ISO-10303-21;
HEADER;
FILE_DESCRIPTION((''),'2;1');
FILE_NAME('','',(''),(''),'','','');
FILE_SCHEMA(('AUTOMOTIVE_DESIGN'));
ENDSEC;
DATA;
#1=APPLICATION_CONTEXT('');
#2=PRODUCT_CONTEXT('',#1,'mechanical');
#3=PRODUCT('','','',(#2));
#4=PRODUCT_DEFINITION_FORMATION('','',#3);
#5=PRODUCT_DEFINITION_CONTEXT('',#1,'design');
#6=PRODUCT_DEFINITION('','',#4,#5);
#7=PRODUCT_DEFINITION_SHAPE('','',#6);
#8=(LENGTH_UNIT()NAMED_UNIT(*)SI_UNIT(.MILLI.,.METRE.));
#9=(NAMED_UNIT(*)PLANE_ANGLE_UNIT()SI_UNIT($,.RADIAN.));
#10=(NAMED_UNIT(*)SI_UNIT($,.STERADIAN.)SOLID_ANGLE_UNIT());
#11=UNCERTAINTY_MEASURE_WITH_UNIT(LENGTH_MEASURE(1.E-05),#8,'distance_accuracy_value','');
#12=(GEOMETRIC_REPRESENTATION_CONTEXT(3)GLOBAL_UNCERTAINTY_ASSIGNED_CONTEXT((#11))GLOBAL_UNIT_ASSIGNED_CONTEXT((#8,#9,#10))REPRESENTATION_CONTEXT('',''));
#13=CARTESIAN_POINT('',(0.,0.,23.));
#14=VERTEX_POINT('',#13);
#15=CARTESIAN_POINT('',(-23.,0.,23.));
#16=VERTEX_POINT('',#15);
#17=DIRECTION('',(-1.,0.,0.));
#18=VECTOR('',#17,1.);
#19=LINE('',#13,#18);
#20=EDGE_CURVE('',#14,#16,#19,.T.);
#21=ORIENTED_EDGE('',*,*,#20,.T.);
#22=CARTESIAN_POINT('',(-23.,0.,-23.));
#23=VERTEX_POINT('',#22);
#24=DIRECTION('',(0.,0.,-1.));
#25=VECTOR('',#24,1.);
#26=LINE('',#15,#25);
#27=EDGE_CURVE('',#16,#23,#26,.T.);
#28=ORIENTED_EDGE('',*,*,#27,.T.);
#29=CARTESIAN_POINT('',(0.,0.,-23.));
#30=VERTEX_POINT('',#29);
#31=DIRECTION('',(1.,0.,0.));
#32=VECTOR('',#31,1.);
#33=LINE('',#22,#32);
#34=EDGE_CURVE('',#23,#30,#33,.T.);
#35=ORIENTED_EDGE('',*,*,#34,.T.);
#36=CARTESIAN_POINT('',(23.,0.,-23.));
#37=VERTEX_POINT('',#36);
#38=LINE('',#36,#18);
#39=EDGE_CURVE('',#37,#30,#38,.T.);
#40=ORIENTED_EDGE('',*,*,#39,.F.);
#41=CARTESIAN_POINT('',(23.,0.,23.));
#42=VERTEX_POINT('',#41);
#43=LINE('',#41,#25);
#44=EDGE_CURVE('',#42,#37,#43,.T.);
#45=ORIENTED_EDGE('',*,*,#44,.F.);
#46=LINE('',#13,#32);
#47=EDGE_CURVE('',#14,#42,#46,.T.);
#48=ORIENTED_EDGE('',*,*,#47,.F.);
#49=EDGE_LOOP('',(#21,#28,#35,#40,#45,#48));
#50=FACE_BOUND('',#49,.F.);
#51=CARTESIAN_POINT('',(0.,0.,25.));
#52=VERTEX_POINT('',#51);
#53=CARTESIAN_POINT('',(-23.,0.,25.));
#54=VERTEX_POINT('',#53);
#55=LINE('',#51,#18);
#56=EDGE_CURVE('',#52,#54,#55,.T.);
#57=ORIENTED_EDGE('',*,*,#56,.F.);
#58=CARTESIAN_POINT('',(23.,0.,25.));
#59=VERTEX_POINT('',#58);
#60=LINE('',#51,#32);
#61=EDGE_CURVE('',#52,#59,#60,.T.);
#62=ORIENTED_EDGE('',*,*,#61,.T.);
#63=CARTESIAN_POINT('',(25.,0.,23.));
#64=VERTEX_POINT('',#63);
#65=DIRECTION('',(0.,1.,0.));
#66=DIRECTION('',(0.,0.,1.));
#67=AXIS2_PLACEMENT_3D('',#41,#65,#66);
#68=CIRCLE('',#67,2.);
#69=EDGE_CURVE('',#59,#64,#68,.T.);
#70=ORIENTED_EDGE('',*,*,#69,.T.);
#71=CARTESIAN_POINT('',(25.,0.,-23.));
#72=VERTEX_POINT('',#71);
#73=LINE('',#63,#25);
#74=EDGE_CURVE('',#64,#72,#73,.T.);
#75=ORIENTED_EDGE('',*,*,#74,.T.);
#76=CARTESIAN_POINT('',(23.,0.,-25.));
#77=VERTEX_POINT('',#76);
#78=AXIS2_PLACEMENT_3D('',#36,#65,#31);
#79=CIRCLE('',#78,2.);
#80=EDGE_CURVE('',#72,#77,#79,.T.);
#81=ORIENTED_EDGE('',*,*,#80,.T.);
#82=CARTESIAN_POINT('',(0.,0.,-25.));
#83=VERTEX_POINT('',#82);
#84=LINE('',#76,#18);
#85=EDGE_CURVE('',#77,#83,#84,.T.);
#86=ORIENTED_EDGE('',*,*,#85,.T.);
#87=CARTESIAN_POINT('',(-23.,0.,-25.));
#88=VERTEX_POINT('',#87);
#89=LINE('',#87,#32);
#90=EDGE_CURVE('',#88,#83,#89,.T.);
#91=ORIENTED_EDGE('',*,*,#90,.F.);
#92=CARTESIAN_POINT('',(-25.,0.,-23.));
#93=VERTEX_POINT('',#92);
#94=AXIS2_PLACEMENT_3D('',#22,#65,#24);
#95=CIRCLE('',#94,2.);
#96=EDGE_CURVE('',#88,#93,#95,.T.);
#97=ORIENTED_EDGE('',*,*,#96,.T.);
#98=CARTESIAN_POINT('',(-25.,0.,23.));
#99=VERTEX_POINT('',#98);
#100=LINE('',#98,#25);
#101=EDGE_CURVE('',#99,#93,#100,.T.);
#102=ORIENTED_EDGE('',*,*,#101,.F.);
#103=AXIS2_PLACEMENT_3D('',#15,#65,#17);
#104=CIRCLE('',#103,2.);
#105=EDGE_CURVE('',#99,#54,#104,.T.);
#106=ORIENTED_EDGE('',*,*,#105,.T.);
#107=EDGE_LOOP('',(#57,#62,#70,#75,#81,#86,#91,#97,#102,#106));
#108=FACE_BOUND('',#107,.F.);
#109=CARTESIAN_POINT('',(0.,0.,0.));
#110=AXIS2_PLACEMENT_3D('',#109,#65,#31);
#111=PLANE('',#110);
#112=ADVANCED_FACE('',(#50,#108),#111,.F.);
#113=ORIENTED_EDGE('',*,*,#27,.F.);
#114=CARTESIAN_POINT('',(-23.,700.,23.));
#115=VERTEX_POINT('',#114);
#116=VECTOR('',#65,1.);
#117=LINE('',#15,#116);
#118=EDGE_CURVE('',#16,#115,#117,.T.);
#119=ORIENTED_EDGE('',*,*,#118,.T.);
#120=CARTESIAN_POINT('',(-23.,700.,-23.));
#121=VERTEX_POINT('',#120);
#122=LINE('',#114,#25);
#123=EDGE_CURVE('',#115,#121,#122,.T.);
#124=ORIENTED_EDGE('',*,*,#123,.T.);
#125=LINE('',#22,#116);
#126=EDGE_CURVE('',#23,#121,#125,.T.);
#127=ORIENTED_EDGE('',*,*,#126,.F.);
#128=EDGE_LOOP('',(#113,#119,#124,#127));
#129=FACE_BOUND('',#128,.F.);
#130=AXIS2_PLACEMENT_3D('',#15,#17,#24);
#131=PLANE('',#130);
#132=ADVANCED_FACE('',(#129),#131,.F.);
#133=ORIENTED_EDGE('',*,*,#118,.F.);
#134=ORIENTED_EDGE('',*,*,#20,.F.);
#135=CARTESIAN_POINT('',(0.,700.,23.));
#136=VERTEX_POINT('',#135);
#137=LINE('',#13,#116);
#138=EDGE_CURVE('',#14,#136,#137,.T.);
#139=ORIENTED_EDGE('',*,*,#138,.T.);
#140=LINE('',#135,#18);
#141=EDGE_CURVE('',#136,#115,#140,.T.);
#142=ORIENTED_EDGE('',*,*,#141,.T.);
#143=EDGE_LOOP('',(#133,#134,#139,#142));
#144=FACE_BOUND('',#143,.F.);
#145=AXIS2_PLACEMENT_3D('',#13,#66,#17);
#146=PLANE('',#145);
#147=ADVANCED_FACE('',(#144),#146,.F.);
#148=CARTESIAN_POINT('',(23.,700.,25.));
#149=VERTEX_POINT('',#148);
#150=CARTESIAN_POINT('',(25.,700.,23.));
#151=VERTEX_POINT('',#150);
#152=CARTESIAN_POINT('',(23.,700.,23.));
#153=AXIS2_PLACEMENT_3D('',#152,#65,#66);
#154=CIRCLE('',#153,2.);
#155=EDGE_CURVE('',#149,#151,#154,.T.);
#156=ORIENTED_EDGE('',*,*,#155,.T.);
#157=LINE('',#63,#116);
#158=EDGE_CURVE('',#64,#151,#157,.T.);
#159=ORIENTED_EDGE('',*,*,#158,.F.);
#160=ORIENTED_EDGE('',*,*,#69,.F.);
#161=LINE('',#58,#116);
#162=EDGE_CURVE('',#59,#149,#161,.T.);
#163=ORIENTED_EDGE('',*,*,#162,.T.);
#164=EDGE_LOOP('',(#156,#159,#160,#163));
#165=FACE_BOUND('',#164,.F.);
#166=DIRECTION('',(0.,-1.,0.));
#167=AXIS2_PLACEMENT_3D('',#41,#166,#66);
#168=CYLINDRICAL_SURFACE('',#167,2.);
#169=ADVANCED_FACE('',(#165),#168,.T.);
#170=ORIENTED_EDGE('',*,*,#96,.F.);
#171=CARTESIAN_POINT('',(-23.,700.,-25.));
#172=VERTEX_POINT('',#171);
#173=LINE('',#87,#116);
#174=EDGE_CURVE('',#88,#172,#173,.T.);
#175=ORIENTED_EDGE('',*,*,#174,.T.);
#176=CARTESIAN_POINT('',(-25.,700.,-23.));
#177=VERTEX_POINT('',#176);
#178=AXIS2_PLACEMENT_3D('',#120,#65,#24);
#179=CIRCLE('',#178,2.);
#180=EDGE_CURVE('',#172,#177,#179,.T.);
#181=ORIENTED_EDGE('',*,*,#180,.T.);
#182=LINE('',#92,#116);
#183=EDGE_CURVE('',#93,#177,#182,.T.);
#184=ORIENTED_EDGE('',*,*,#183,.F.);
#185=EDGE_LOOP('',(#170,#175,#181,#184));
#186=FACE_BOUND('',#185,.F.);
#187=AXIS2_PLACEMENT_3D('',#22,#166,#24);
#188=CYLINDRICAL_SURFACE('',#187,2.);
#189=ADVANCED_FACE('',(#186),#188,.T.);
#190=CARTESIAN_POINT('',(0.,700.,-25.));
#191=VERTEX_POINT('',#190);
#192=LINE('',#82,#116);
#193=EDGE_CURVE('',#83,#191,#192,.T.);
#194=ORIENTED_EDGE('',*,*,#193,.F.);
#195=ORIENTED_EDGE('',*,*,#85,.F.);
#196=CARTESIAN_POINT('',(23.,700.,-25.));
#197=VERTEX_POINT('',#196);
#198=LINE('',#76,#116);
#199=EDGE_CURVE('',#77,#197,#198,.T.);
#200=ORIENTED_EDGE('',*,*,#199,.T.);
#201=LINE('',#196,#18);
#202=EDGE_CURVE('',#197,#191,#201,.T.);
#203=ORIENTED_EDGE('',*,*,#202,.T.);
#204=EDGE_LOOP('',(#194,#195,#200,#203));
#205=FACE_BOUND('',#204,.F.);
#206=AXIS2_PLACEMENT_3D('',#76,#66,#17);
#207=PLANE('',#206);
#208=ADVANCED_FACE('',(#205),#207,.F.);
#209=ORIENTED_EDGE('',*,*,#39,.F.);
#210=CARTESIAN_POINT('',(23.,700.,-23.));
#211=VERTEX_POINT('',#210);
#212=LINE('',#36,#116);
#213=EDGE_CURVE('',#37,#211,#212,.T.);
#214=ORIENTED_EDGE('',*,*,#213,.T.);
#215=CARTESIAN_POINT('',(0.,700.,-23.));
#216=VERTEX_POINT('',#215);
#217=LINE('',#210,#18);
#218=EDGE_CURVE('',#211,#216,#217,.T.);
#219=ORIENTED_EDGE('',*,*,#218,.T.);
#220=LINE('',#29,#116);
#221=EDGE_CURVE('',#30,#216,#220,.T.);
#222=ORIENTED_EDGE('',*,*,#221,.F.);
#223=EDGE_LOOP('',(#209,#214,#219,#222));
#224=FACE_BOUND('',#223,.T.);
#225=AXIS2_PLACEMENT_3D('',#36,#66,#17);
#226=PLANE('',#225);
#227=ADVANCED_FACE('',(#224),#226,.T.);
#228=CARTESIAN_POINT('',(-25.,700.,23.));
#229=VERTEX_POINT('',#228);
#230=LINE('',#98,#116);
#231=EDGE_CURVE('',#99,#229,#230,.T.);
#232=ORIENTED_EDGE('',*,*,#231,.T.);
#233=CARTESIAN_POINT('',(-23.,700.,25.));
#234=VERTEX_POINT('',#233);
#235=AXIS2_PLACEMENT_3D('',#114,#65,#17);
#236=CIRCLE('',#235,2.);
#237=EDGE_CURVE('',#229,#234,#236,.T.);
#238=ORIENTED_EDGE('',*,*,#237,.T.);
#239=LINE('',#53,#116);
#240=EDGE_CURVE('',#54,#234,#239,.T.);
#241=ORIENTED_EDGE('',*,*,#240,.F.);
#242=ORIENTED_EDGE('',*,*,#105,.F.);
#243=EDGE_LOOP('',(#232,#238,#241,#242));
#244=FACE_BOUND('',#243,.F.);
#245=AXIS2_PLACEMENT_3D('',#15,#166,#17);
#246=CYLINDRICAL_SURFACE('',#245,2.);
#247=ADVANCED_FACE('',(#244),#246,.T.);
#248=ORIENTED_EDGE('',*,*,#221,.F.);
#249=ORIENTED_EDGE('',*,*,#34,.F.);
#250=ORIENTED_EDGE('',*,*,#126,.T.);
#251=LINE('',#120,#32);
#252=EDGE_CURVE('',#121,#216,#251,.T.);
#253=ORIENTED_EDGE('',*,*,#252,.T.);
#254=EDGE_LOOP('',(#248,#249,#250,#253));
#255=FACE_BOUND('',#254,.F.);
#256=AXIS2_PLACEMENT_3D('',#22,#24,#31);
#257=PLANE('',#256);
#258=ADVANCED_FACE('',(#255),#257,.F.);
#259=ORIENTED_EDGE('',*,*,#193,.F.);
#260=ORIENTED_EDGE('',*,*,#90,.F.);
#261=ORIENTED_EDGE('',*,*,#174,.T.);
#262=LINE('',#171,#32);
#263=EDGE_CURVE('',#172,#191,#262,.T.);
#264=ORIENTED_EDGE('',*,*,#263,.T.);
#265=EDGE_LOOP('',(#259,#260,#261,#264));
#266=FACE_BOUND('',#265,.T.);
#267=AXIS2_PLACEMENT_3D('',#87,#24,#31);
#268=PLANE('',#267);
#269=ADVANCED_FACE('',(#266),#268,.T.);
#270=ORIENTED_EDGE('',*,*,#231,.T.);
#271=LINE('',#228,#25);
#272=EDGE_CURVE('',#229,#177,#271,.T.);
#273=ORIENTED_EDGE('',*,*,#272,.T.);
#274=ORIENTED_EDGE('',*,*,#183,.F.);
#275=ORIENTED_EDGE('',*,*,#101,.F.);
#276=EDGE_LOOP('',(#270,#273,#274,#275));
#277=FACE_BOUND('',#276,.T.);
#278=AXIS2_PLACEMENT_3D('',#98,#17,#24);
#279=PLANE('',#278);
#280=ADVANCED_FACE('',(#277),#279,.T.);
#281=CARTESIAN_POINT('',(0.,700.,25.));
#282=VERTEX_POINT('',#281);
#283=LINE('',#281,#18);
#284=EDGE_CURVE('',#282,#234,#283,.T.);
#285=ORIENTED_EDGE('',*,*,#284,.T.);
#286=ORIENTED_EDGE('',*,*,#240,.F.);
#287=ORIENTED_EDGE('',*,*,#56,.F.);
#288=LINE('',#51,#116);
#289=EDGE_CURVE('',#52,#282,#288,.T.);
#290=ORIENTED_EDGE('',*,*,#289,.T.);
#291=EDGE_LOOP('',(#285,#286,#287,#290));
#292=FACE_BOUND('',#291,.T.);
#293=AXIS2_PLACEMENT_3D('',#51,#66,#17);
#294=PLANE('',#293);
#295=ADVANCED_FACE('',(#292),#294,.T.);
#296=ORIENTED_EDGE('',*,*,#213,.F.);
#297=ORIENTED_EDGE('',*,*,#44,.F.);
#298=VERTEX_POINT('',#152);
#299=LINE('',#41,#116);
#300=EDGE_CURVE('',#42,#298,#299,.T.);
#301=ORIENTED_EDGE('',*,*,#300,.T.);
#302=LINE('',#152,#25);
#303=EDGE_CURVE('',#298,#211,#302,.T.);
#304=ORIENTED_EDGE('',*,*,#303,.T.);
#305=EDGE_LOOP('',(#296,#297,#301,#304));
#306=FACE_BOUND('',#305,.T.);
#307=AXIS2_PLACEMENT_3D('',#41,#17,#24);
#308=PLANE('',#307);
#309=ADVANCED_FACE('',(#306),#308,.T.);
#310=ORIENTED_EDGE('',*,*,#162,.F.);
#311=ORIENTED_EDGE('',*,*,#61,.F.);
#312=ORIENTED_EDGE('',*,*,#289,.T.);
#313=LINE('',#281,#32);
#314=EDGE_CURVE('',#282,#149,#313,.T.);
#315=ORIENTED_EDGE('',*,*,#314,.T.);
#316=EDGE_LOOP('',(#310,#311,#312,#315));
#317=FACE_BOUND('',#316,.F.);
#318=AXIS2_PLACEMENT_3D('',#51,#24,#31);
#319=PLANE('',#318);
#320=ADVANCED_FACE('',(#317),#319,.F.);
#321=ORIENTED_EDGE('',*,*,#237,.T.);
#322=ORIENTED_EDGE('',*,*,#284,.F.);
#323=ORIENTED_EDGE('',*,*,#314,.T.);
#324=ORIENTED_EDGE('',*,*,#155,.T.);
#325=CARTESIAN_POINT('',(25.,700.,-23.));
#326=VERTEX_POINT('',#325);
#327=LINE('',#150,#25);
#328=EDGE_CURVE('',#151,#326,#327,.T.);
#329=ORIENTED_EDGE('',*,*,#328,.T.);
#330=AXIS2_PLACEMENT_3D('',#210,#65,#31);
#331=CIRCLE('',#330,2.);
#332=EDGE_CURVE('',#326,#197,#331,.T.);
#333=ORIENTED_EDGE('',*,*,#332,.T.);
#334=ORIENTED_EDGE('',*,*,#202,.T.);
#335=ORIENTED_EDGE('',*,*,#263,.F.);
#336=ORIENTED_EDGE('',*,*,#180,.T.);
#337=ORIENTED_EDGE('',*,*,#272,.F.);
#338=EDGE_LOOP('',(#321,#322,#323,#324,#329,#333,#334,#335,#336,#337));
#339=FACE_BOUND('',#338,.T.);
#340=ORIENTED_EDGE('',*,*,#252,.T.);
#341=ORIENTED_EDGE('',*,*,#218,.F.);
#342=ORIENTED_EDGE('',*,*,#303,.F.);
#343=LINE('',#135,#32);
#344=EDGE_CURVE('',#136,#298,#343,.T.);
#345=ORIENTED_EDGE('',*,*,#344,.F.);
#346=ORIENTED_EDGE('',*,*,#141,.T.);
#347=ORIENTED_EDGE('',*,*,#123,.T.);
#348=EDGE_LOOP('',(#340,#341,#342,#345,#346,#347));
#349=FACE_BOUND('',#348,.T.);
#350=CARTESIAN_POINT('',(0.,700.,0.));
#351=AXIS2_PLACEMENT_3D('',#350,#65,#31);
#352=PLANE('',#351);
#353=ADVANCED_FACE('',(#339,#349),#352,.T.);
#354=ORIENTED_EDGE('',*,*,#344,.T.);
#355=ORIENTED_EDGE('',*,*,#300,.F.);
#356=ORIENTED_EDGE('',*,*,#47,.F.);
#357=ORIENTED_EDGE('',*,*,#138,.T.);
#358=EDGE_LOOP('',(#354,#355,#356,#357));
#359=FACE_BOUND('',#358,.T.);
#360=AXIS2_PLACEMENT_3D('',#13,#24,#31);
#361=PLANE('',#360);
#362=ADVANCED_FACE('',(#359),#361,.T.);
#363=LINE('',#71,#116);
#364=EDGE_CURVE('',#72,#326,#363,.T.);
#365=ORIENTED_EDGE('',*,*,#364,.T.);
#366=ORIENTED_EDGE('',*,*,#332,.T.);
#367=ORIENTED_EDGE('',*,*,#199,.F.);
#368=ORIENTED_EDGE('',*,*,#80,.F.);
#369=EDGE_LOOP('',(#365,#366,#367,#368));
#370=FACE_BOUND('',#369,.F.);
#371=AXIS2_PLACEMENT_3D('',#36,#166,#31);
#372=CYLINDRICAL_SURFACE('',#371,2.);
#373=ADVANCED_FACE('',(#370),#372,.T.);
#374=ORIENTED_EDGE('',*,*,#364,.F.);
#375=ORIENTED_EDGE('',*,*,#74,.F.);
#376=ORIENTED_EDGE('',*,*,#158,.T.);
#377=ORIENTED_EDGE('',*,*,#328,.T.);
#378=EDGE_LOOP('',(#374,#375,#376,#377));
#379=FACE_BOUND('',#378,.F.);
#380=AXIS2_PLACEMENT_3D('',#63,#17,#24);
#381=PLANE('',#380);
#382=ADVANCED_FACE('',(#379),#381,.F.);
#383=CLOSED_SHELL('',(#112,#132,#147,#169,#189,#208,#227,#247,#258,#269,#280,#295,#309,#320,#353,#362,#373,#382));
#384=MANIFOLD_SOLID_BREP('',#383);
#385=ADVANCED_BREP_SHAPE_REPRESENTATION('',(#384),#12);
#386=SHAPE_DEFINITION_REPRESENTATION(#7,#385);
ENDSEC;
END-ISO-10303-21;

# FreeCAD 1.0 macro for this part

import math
import FreeCAD as App
import Part
import Sketcher


def add_polygon(sketch, points):
    """Adds a closed chain of lines whose ends are joined by coincident constraints."""
    first, n = sketch.GeometryCount, len(points)
    for a, b in zip(points, points[1:] + points[:1]):
        sketch.addGeometry(Part.LineSegment(App.Vector(*a, 0), App.Vector(*b, 0)), False)
    for i in range(n):
        sketch.addConstraint(Sketcher.Constraint("Coincident", first + i, 2, first + (i + 1) % n, 1))

doc = App.newDocument("Part")
body = doc.addObject("PartDesign::Body", "Body")

sketch1 = doc.addObject("Sketcher::SketchObject", "Sketch")
body.addObject(sketch1)
sketch1.AttachmentSupport = (doc.XZ_Plane, [""])
sketch1.MapMode = "FlatFace"
sketch1.addGeometry(Part.LineSegment(App.Vector(-23, 25, 0), App.Vector(23, 25, 0)), False)
sketch1.addGeometry(Part.ArcOfCircle(Part.Circle(App.Vector(23, 23, 0), App.Vector(0, 0, 1), 2), math.radians(0), math.radians(90)), False)
sketch1.addGeometry(Part.LineSegment(App.Vector(25, 23, 0), App.Vector(25, -23, 0)), False)
sketch1.addGeometry(Part.ArcOfCircle(Part.Circle(App.Vector(23, -23, 0), App.Vector(0, 0, 1), 2), math.radians(-90), math.radians(0)), False)
sketch1.addGeometry(Part.LineSegment(App.Vector(23, -25, 0), App.Vector(-23, -25, 0)), False)
sketch1.addGeometry(Part.ArcOfCircle(Part.Circle(App.Vector(-23, -23, 0), App.Vector(0, 0, 1), 2), math.radians(180), math.radians(270)), False)
sketch1.addGeometry(Part.LineSegment(App.Vector(-25, -23, 0), App.Vector(-25, 23, 0)), False)
sketch1.addGeometry(Part.ArcOfCircle(Part.Circle(App.Vector(-23, 23, 0), App.Vector(0, 0, 1), 2), math.radians(90), math.radians(180)), False)
add_polygon(sketch1, [(23, 23), (-23, 23), (-23, -23), (23, -23)])
sketch1.addConstraint([
    Sketcher.Constraint("Tangent", 0, 2, 1, 2),
    Sketcher.Constraint("Tangent", 1, 1, 2, 1),
    Sketcher.Constraint("Tangent", 2, 2, 3, 2),
    Sketcher.Constraint("Tangent", 3, 1, 4, 1),
    Sketcher.Constraint("Tangent", 4, 2, 5, 2),
    Sketcher.Constraint("Tangent", 5, 1, 6, 1),
    Sketcher.Constraint("Tangent", 6, 2, 7, 2),
    Sketcher.Constraint("Tangent", 7, 1, 0, 1),
    Sketcher.Constraint("Horizontal", 0),
    Sketcher.Constraint("Vertical", 2),
    Sketcher.Constraint("Horizontal", 4),
    Sketcher.Constraint("Vertical", 6),
    Sketcher.Constraint("Horizontal", 8),
    Sketcher.Constraint("Vertical", 9),
    Sketcher.Constraint("Horizontal", 10),
    Sketcher.Constraint("Vertical", 11),
    Sketcher.Constraint("Coincident", 8, 2, 7, 3),
    Sketcher.Constraint("Coincident", 9, 2, 5, 3),
    Sketcher.Constraint("Coincident", 10, 2, 3, 3),
    Sketcher.Constraint("Equal", 1, 3),
    Sketcher.Constraint("Symmetric", 1, 3, 5, 3, -1, 1),
    Sketcher.Constraint("Equal", 10, 2),
    Sketcher.Constraint("Radius", 1, 2.0),
    Sketcher.Constraint("DistanceY", -1, 1, 0, 2, 25.0),
])
pad1 = doc.addObject("PartDesign::Pad", "Pad")
body.addObject(pad1)
pad1.Profile = sketch1
pad1.Length = 700
pad1.Reversed = True

doc.recompute()
